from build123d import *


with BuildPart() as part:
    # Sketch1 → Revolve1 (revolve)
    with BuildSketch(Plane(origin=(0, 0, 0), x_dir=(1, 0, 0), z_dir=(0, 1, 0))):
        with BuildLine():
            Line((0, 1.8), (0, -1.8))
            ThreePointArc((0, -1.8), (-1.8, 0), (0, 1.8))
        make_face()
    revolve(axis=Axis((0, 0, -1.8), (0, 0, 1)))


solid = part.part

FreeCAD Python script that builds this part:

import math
import FreeCAD as App
import Part
import Sketcher

V = App.Vector

doc = App.newDocument("Part")
params = doc.addObject("Spreadsheet::Sheet", "Params")
for row, (alias, value) in enumerate([
    ("sketch1_radius", "1.8 mm"),
    ("revolution_angle", "360 deg"),
], start=1):
    params.set(f"A{row}", alias)
    params.set(f"B{row}", "=" + value)
    params.setAlias(f"B{row}", alias)

body = doc.addObject("PartDesign::Body", "Body")

# Sketch on XZ plane
sketch1 = body.newObject("Sketcher::SketchObject", "Sketch")
sketch1.AttachmentSupport = (doc.getObject("XZ_Plane"), [""])
sketch1.MapMode = "FlatFace"
sketch1.addGeometry(Part.LineSegment(V(0, 1.8, 0), V(0, -1.8, 0)), False)
sketch1.addGeometry(Part.ArcOfCircle(Part.Circle(V(0, 0, 0), V(0, 0, 1), 1.8), math.radians(90), math.radians(270)), False)
sketch1.addConstraint(Sketcher.Constraint("Coincident", 0, 1, 1, 1))
sketch1.addConstraint(Sketcher.Constraint("Coincident", 1, 2, 0, 2))
sketch1.addConstraint(Sketcher.Constraint("Vertical", 0))
sketch1.addConstraint(Sketcher.Constraint("Coincident", 1, 3, -1, 1))
sketch1.addConstraint(Sketcher.Constraint("PointOnObject", 0, 1, -2))
sketch1.addConstraint(Sketcher.Constraint("Radius", 1, 1.8))
sketch1.setExpression("Constraints[5]", "Params.sketch1_radius")
revolution = body.newObject("PartDesign::Revolution", "Revolution")
revolution.Profile = sketch1
revolution.ReferenceAxis = (sketch1, ["V_Axis"])
revolution.setExpression("Angle", "Params.revolution_angle")

doc.recompute()
